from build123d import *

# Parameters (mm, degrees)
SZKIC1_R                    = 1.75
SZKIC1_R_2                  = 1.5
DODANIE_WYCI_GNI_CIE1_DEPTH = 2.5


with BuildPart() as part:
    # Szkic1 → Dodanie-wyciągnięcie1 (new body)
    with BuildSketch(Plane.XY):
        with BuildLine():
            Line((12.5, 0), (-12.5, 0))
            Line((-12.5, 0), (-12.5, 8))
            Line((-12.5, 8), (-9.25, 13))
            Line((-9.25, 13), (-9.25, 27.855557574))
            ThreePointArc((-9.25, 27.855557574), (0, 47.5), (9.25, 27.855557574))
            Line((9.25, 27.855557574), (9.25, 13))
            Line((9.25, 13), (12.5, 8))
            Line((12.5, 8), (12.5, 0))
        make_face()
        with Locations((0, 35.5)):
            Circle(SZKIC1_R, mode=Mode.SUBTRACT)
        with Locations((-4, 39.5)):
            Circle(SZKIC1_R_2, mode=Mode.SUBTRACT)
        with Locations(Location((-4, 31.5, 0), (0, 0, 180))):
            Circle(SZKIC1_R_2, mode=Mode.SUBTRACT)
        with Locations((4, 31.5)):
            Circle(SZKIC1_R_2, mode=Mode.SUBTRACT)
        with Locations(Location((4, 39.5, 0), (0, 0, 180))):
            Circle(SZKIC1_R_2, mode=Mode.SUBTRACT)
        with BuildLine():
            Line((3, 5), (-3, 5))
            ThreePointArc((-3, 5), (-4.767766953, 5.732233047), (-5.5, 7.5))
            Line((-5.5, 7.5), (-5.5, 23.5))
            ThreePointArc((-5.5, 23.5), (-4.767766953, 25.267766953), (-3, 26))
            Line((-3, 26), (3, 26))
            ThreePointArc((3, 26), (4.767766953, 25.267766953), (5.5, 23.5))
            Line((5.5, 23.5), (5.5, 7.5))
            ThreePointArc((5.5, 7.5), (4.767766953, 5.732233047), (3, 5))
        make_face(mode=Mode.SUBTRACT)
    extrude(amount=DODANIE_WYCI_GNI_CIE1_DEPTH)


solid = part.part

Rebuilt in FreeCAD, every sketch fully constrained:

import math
import FreeCAD as App
import Part
import Sketcher
from FreeCAD import Vector
Q = App.Units.Quantity

doc = App.newDocument("Part")
body = doc.addObject("PartDesign::Body", "Body")

# Sketch on XY plane
sketch1 = doc.addObject("Sketcher::SketchObject", "Sketch")
body.addObject(sketch1)
sketch1.AttachmentSupport = (doc.XY_Plane, [""])
sketch1.MapMode = "FlatFace"
sketch1.addGeometry([
    Part.LineSegment(Vector(-12.5, 0, 0), Vector(12.5, 0, 0)),  # 0
    Part.LineSegment(Vector(12.5, 0, 0), Vector(12.5, 8, 0)),  # 1
    Part.LineSegment(Vector(12.5, 8, 0), Vector(9.2, 13, 0)),  # 2
    Part.LineSegment(Vector(9.2, 13, 0), Vector(9.2, 27.9, 0)),  # 3
    Part.ArcOfCircle(Part.Circle(Vector(0, 35.5, 0), Vector(0, 0, 1), 12), math.radians(-40), math.radians(220)),  # 4
    Part.LineSegment(Vector(-9.2, 27.9, 0), Vector(-9.2, 13, 0)),  # 5
    Part.LineSegment(Vector(-9.2, 13, 0), Vector(-12.5, 8, 0)),  # 6
    Part.LineSegment(Vector(-12.5, 8, 0), Vector(-12.5, 0, 0)),  # 7
    Part.LineSegment(Vector(3, 5, 0), Vector(-3, 5, 0)),  # 8
    Part.ArcOfCircle(Part.Circle(Vector(-3, 7.5, 0), Vector(0, 0, 1), 2.5), math.radians(180), math.radians(270)),  # 9
    Part.LineSegment(Vector(-5.5, 7.5, 0), Vector(-5.5, 23.5, 0)),  # 10
    Part.ArcOfCircle(Part.Circle(Vector(-3, 23.5, 0), Vector(0, 0, 1), 2.5), math.radians(90), math.radians(180)),  # 11
    Part.LineSegment(Vector(-3, 26, 0), Vector(3, 26, 0)),  # 12
    Part.ArcOfCircle(Part.Circle(Vector(3, 23.5, 0), Vector(0, 0, 1), 2.5), math.radians(0), math.radians(90)),  # 13
    Part.LineSegment(Vector(5.5, 23.5, 0), Vector(5.5, 7.5, 0)),  # 14
    Part.ArcOfCircle(Part.Circle(Vector(3, 7.5, 0), Vector(0, 0, 1), 2.5), math.radians(-90), math.radians(0)),  # 15
    Part.Circle(Vector(4, 31.5, 0), Vector(0, 0, 1), 1.5),  # 16
    Part.Circle(Vector(4, 39.5, 0), Vector(0, 0, 1), 1.5),  # 17
    Part.Circle(Vector(-4, 31.5, 0), Vector(0, 0, 1), 1.5),  # 18
    Part.Circle(Vector(0, 35.5, 0), Vector(0, 0, 1), 1.8),  # 19
    Part.Circle(Vector(-4, 39.5, 0), Vector(0, 0, 1), 1.5),  # 20
], False)
sketch1.addConstraint([
    Sketcher.Constraint("Coincident", 0, 2, 1, 1),
    Sketcher.Constraint("Coincident", 1, 2, 2, 1),
    Sketcher.Constraint("Coincident", 2, 2, 3, 1),
    Sketcher.Constraint("Coincident", 3, 2, 4, 1),
    Sketcher.Constraint("Coincident", 4, 2, 5, 1),
    Sketcher.Constraint("Coincident", 5, 2, 6, 1),
    Sketcher.Constraint("Coincident", 6, 2, 7, 1),
    Sketcher.Constraint("Coincident", 7, 2, 0, 1),
    Sketcher.Constraint("Tangent", 8, 2, 9, 2),
    Sketcher.Constraint("Tangent", 9, 1, 10, 1),
    Sketcher.Constraint("Tangent", 10, 2, 11, 2),
    Sketcher.Constraint("Tangent", 11, 1, 12, 1),
    Sketcher.Constraint("Tangent", 12, 2, 13, 2),
    Sketcher.Constraint("Tangent", 13, 1, 14, 1),
    Sketcher.Constraint("Tangent", 14, 2, 15, 2),
    Sketcher.Constraint("Tangent", 15, 1, 8, 1),
    Sketcher.Constraint("Horizontal", 0),
    Sketcher.Constraint("Vertical", 1),
    Sketcher.Constraint("Vertical", 3),
    Sketcher.Constraint("Vertical", 5),
    Sketcher.Constraint("Vertical", 7),
    Sketcher.Constraint("Horizontal", 8),
    Sketcher.Constraint("Vertical", 10),
    Sketcher.Constraint("Horizontal", 12),
    Sketcher.Constraint("Vertical", 14),
    Sketcher.Constraint("Coincident", 19, 3, 4, 3),
    Sketcher.Constraint("Equal", 9, 11),
    Sketcher.Constraint("Equal", 11, 13),
    Sketcher.Constraint("Equal", 13, 15),
    Sketcher.Constraint("Equal", 16, 17),
    Sketcher.Constraint("Equal", 17, 18),
    Sketcher.Constraint("Equal", 18, 20),
    Sketcher.Constraint("Symmetric", 0, 2, 7, 2, -1, 1),
    Sketcher.Constraint("Symmetric", 16, 3, 18, 3, -2),
    Sketcher.Constraint("Symmetric", 17, 3, 20, 3, -2),
    Sketcher.Constraint("Symmetric", 3, 2, 4, 2, -2),
    Sketcher.Constraint("Horizontal", 2, 2, 5, 2),
    Sketcher.Constraint("Horizontal", 1, 2, 6, 2),
    Sketcher.Constraint("Vertical", 16, 3, 17, 3),
    Sketcher.Constraint("Diameter", 16, Q("3 mm")),
    Sketcher.Constraint("Radius", 4, Q("12 mm")),
    Sketcher.Constraint("Diameter", 19, Q("3.5 mm")),
    Sketcher.Constraint("Radius", 9, Q("2.5 mm")),
    Sketcher.Constraint("DistanceX", 0, 1, 0, 2, Q("25 mm")),
    Sketcher.Constraint("DistanceX", 8, 2, 8, 1, Q("6 mm")),
    Sketcher.Constraint("DistanceY", 1, 1, 1, 2, Q("8 mm")),
    Sketcher.Constraint("DistanceY", 10, 1, 10, 2, Q("16 mm")),
    Sketcher.Constraint("DistanceX", 9, 3, -1, 1, Q("3 mm")),
    Sketcher.Constraint("DistanceX", -1, 1, 16, 3, Q("4 mm")),
    Sketcher.Constraint("DistanceY", -1, 1, 2, 2, Q("13 mm")),
    Sketcher.Constraint("DistanceY", -1, 1, 8, 2, Q("5 mm")),
    Sketcher.Constraint("DistanceY", 9, 3, 4, 3, Q("28 mm")),
    Sketcher.Constraint("DistanceY", 16, 3, 4, 3, Q("4 mm")),
    Sketcher.Constraint("DistanceY", 4, 3, 17, 3, Q("4 mm")),
    Sketcher.Constraint("DistanceX", -1, 1, 2, 2, Q("9.25 mm")),
])
pad1 = doc.addObject("PartDesign::Pad", "Pad")
body.addObject(pad1)
pad1.Profile = sketch1
pad1.Length = 2.5

doc.recompute()
